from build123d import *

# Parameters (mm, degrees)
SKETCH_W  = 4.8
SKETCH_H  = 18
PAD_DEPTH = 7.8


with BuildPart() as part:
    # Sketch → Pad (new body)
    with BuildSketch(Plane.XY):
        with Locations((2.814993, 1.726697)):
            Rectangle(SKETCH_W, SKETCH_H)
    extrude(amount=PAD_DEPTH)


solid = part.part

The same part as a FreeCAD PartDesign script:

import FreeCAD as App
import Part
import Sketcher
Q = App.Units.Quantity

doc = App.newDocument("Part")
body = doc.addObject("PartDesign::Body", "Body")

sketch1 = body.newObject("Sketcher::SketchObject", "Sketch")
sketch1.AttachmentSupport = (doc.getObject("XY_Plane"), [""])
sketch1.MapMode = "FlatFace"
sketch1.addGeometry([
    Part.LineSegment(App.Vector(0.4, 10.7, 0), App.Vector(0.4, -7.3, 0)),
    Part.LineSegment(App.Vector(0.4, -7.3, 0), App.Vector(5.2, -7.3, 0)),
    Part.LineSegment(App.Vector(5.2, -7.3, 0), App.Vector(5.2, 10.7, 0)),
    Part.LineSegment(App.Vector(5.2, 10.7, 0), App.Vector(0.4, 10.7, 0)),
], False)
sketch1.addConstraint([
    Sketcher.Constraint("Coincident", 0, 2, 1, 1),
    Sketcher.Constraint("Coincident", 1, 2, 2, 1),
    Sketcher.Constraint("Coincident", 2, 2, 3, 1),
    Sketcher.Constraint("Coincident", 3, 2, 0, 1),
    Sketcher.Constraint("Vertical", 0),
    Sketcher.Constraint("Horizontal", 1),
    Sketcher.Constraint("Vertical", 2),
    Sketcher.Constraint("Horizontal", 3),
    Sketcher.Constraint("DistanceY", 0, 2, 0, 1, Q("18 mm")),
    Sketcher.Constraint("DistanceX", 1, 1, 1, 2, Q("4.8 mm")),
    Sketcher.Constraint("DistanceX", -1, 1, 0, 2, Q("0.414993 mm")),
    Sketcher.Constraint("DistanceY", 0, 2, -1, 1, Q("7.273303 mm")),
])
pad1 = body.newObject("PartDesign::Pad", "Pad")
pad1.Profile = sketch1
pad1.Length = 7.8

doc.recompute()
